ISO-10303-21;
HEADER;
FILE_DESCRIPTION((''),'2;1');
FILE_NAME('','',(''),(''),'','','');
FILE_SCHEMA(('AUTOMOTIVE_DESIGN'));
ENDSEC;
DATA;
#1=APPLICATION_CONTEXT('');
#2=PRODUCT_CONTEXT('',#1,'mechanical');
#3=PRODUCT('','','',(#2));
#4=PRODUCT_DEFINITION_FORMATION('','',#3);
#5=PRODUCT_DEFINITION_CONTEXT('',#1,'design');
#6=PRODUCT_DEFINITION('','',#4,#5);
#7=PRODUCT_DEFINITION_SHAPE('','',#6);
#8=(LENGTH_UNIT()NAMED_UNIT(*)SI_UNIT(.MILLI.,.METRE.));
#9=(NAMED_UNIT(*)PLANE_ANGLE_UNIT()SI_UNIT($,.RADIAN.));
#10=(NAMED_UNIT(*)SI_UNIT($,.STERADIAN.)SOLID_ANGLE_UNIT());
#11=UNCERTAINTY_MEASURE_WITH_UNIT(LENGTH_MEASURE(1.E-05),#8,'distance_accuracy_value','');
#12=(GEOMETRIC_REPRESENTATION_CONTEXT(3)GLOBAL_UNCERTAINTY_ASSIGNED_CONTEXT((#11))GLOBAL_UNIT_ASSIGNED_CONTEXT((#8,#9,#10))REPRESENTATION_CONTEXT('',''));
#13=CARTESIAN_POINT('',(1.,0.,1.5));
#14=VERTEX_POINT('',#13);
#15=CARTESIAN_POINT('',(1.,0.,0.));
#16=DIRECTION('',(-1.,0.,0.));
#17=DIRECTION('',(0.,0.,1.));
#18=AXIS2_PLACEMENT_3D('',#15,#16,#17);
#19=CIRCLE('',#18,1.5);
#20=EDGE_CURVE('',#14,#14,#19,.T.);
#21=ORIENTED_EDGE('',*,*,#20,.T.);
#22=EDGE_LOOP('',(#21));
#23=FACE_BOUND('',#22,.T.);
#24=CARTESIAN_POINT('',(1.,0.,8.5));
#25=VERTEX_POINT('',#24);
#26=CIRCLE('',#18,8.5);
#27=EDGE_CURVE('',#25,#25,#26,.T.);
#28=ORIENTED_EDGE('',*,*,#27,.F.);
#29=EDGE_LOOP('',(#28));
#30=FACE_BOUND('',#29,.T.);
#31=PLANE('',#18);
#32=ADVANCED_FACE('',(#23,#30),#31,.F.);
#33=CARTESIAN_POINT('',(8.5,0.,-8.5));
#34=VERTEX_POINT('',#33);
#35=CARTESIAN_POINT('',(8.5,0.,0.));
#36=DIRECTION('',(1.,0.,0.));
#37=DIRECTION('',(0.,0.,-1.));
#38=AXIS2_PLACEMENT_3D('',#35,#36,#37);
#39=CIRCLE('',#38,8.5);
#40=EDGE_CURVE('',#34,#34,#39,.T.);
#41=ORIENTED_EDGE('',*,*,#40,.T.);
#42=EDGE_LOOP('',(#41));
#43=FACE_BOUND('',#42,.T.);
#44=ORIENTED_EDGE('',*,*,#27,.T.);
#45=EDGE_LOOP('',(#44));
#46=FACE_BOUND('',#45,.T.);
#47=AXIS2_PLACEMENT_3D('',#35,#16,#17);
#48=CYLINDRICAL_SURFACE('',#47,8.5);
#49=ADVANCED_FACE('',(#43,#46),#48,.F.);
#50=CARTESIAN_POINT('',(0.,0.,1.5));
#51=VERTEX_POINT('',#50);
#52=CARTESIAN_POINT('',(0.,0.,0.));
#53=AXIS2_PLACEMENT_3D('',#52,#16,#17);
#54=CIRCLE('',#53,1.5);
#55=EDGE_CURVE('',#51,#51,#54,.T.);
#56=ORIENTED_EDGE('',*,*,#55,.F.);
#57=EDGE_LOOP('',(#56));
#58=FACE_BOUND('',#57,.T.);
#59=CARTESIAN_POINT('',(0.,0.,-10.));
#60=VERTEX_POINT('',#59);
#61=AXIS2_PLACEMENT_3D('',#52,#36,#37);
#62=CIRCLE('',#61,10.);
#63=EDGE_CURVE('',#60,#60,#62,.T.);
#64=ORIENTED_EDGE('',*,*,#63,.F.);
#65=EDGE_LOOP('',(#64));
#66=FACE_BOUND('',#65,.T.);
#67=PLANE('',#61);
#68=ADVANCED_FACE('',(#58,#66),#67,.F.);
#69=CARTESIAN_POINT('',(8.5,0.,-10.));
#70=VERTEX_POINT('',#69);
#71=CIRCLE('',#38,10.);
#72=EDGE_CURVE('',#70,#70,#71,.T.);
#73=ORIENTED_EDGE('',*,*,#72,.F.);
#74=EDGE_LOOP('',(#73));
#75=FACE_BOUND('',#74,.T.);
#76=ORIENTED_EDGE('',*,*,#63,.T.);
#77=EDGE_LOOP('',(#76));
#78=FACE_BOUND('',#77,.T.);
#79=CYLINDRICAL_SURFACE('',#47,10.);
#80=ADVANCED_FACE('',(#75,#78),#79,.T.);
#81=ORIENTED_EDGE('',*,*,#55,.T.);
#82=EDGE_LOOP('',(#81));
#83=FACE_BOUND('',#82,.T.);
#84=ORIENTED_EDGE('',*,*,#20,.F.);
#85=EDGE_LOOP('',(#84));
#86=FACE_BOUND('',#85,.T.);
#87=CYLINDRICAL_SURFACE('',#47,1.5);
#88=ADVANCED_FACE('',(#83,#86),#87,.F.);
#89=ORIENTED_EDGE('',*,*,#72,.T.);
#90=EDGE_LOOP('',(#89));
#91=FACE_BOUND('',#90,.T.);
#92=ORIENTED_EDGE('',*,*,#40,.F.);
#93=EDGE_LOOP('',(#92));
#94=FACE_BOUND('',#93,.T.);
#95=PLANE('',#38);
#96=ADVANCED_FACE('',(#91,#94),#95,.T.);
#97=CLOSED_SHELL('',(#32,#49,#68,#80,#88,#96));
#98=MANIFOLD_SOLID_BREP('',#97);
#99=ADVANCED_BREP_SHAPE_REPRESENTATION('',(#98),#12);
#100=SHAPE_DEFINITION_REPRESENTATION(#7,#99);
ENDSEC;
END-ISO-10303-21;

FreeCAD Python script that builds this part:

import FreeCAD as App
import Part
import Sketcher

V = App.Vector

doc = App.newDocument("Part")
body = doc.addObject("PartDesign::Body", "Body")

# Sketch on YZ plane
sketch1 = body.newObject("Sketcher::SketchObject", "Sketch")
sketch1.AttachmentSupport = (doc.getObject("YZ_Plane"), [""])
sketch1.MapMode = "FlatFace"
sketch1.addGeometry(Part.Circle(V(0, 0, 0), V(0, 0, 1), 10), False)
sketch1.addGeometry(Part.Circle(V(0, 0, 0), V(0, 0, 1), 8), False)
sketch1.addConstraint(Sketcher.Constraint("Coincident", 0, 3, -1, 1))
sketch1.addConstraint(Sketcher.Constraint("Coincident", 1, 3, -1, 1))
sketch1.addConstraint(Sketcher.Constraint("Diameter", 0, 20.0))
sketch1.addConstraint(Sketcher.Constraint("Diameter", 1, 17.0))
pad1 = body.newObject("PartDesign::Pad", "Pad")
pad1.Profile = sketch1
pad1.Length = 8.5

# Sketch on YZ plane
sketch2 = body.newObject("Sketcher::SketchObject", "Sketch001")
sketch2.AttachmentSupport = (doc.getObject("YZ_Plane"), [""])
sketch2.MapMode = "FlatFace"
sketch2.addGeometry(Part.Circle(V(0, 0, 0), V(0, 0, 1), 8), False)
sketch2.addConstraint(Sketcher.Constraint("Coincident", 0, 3, -1, 1))
sketch2.addConstraint(Sketcher.Constraint("Diameter", 0, 17.0))
pad2 = body.newObject("PartDesign::Pad", "Pad001")
pad2.Profile = sketch2
pad2.Length = 1

# Sketch on YZ plane
sketch3 = body.newObject("Sketcher::SketchObject", "Sketch002")
sketch3.AttachmentSupport = (doc.getObject("YZ_Plane"), [""])
sketch3.MapMode = "FlatFace"
sketch3.addGeometry(Part.Circle(V(0, 0, 0), V(0, 0, 1), 1.5), False)
sketch3.addConstraint(Sketcher.Constraint("Coincident", 0, 3, -1, 1))
sketch3.addConstraint(Sketcher.Constraint("Diameter", 0, 3.0))
pocket1 = body.newObject("PartDesign::Pocket", "Pocket")
pocket1.Profile = sketch3
pocket1.Type = "ThroughAll"
pocket1.Reversed = True

doc.recompute()
